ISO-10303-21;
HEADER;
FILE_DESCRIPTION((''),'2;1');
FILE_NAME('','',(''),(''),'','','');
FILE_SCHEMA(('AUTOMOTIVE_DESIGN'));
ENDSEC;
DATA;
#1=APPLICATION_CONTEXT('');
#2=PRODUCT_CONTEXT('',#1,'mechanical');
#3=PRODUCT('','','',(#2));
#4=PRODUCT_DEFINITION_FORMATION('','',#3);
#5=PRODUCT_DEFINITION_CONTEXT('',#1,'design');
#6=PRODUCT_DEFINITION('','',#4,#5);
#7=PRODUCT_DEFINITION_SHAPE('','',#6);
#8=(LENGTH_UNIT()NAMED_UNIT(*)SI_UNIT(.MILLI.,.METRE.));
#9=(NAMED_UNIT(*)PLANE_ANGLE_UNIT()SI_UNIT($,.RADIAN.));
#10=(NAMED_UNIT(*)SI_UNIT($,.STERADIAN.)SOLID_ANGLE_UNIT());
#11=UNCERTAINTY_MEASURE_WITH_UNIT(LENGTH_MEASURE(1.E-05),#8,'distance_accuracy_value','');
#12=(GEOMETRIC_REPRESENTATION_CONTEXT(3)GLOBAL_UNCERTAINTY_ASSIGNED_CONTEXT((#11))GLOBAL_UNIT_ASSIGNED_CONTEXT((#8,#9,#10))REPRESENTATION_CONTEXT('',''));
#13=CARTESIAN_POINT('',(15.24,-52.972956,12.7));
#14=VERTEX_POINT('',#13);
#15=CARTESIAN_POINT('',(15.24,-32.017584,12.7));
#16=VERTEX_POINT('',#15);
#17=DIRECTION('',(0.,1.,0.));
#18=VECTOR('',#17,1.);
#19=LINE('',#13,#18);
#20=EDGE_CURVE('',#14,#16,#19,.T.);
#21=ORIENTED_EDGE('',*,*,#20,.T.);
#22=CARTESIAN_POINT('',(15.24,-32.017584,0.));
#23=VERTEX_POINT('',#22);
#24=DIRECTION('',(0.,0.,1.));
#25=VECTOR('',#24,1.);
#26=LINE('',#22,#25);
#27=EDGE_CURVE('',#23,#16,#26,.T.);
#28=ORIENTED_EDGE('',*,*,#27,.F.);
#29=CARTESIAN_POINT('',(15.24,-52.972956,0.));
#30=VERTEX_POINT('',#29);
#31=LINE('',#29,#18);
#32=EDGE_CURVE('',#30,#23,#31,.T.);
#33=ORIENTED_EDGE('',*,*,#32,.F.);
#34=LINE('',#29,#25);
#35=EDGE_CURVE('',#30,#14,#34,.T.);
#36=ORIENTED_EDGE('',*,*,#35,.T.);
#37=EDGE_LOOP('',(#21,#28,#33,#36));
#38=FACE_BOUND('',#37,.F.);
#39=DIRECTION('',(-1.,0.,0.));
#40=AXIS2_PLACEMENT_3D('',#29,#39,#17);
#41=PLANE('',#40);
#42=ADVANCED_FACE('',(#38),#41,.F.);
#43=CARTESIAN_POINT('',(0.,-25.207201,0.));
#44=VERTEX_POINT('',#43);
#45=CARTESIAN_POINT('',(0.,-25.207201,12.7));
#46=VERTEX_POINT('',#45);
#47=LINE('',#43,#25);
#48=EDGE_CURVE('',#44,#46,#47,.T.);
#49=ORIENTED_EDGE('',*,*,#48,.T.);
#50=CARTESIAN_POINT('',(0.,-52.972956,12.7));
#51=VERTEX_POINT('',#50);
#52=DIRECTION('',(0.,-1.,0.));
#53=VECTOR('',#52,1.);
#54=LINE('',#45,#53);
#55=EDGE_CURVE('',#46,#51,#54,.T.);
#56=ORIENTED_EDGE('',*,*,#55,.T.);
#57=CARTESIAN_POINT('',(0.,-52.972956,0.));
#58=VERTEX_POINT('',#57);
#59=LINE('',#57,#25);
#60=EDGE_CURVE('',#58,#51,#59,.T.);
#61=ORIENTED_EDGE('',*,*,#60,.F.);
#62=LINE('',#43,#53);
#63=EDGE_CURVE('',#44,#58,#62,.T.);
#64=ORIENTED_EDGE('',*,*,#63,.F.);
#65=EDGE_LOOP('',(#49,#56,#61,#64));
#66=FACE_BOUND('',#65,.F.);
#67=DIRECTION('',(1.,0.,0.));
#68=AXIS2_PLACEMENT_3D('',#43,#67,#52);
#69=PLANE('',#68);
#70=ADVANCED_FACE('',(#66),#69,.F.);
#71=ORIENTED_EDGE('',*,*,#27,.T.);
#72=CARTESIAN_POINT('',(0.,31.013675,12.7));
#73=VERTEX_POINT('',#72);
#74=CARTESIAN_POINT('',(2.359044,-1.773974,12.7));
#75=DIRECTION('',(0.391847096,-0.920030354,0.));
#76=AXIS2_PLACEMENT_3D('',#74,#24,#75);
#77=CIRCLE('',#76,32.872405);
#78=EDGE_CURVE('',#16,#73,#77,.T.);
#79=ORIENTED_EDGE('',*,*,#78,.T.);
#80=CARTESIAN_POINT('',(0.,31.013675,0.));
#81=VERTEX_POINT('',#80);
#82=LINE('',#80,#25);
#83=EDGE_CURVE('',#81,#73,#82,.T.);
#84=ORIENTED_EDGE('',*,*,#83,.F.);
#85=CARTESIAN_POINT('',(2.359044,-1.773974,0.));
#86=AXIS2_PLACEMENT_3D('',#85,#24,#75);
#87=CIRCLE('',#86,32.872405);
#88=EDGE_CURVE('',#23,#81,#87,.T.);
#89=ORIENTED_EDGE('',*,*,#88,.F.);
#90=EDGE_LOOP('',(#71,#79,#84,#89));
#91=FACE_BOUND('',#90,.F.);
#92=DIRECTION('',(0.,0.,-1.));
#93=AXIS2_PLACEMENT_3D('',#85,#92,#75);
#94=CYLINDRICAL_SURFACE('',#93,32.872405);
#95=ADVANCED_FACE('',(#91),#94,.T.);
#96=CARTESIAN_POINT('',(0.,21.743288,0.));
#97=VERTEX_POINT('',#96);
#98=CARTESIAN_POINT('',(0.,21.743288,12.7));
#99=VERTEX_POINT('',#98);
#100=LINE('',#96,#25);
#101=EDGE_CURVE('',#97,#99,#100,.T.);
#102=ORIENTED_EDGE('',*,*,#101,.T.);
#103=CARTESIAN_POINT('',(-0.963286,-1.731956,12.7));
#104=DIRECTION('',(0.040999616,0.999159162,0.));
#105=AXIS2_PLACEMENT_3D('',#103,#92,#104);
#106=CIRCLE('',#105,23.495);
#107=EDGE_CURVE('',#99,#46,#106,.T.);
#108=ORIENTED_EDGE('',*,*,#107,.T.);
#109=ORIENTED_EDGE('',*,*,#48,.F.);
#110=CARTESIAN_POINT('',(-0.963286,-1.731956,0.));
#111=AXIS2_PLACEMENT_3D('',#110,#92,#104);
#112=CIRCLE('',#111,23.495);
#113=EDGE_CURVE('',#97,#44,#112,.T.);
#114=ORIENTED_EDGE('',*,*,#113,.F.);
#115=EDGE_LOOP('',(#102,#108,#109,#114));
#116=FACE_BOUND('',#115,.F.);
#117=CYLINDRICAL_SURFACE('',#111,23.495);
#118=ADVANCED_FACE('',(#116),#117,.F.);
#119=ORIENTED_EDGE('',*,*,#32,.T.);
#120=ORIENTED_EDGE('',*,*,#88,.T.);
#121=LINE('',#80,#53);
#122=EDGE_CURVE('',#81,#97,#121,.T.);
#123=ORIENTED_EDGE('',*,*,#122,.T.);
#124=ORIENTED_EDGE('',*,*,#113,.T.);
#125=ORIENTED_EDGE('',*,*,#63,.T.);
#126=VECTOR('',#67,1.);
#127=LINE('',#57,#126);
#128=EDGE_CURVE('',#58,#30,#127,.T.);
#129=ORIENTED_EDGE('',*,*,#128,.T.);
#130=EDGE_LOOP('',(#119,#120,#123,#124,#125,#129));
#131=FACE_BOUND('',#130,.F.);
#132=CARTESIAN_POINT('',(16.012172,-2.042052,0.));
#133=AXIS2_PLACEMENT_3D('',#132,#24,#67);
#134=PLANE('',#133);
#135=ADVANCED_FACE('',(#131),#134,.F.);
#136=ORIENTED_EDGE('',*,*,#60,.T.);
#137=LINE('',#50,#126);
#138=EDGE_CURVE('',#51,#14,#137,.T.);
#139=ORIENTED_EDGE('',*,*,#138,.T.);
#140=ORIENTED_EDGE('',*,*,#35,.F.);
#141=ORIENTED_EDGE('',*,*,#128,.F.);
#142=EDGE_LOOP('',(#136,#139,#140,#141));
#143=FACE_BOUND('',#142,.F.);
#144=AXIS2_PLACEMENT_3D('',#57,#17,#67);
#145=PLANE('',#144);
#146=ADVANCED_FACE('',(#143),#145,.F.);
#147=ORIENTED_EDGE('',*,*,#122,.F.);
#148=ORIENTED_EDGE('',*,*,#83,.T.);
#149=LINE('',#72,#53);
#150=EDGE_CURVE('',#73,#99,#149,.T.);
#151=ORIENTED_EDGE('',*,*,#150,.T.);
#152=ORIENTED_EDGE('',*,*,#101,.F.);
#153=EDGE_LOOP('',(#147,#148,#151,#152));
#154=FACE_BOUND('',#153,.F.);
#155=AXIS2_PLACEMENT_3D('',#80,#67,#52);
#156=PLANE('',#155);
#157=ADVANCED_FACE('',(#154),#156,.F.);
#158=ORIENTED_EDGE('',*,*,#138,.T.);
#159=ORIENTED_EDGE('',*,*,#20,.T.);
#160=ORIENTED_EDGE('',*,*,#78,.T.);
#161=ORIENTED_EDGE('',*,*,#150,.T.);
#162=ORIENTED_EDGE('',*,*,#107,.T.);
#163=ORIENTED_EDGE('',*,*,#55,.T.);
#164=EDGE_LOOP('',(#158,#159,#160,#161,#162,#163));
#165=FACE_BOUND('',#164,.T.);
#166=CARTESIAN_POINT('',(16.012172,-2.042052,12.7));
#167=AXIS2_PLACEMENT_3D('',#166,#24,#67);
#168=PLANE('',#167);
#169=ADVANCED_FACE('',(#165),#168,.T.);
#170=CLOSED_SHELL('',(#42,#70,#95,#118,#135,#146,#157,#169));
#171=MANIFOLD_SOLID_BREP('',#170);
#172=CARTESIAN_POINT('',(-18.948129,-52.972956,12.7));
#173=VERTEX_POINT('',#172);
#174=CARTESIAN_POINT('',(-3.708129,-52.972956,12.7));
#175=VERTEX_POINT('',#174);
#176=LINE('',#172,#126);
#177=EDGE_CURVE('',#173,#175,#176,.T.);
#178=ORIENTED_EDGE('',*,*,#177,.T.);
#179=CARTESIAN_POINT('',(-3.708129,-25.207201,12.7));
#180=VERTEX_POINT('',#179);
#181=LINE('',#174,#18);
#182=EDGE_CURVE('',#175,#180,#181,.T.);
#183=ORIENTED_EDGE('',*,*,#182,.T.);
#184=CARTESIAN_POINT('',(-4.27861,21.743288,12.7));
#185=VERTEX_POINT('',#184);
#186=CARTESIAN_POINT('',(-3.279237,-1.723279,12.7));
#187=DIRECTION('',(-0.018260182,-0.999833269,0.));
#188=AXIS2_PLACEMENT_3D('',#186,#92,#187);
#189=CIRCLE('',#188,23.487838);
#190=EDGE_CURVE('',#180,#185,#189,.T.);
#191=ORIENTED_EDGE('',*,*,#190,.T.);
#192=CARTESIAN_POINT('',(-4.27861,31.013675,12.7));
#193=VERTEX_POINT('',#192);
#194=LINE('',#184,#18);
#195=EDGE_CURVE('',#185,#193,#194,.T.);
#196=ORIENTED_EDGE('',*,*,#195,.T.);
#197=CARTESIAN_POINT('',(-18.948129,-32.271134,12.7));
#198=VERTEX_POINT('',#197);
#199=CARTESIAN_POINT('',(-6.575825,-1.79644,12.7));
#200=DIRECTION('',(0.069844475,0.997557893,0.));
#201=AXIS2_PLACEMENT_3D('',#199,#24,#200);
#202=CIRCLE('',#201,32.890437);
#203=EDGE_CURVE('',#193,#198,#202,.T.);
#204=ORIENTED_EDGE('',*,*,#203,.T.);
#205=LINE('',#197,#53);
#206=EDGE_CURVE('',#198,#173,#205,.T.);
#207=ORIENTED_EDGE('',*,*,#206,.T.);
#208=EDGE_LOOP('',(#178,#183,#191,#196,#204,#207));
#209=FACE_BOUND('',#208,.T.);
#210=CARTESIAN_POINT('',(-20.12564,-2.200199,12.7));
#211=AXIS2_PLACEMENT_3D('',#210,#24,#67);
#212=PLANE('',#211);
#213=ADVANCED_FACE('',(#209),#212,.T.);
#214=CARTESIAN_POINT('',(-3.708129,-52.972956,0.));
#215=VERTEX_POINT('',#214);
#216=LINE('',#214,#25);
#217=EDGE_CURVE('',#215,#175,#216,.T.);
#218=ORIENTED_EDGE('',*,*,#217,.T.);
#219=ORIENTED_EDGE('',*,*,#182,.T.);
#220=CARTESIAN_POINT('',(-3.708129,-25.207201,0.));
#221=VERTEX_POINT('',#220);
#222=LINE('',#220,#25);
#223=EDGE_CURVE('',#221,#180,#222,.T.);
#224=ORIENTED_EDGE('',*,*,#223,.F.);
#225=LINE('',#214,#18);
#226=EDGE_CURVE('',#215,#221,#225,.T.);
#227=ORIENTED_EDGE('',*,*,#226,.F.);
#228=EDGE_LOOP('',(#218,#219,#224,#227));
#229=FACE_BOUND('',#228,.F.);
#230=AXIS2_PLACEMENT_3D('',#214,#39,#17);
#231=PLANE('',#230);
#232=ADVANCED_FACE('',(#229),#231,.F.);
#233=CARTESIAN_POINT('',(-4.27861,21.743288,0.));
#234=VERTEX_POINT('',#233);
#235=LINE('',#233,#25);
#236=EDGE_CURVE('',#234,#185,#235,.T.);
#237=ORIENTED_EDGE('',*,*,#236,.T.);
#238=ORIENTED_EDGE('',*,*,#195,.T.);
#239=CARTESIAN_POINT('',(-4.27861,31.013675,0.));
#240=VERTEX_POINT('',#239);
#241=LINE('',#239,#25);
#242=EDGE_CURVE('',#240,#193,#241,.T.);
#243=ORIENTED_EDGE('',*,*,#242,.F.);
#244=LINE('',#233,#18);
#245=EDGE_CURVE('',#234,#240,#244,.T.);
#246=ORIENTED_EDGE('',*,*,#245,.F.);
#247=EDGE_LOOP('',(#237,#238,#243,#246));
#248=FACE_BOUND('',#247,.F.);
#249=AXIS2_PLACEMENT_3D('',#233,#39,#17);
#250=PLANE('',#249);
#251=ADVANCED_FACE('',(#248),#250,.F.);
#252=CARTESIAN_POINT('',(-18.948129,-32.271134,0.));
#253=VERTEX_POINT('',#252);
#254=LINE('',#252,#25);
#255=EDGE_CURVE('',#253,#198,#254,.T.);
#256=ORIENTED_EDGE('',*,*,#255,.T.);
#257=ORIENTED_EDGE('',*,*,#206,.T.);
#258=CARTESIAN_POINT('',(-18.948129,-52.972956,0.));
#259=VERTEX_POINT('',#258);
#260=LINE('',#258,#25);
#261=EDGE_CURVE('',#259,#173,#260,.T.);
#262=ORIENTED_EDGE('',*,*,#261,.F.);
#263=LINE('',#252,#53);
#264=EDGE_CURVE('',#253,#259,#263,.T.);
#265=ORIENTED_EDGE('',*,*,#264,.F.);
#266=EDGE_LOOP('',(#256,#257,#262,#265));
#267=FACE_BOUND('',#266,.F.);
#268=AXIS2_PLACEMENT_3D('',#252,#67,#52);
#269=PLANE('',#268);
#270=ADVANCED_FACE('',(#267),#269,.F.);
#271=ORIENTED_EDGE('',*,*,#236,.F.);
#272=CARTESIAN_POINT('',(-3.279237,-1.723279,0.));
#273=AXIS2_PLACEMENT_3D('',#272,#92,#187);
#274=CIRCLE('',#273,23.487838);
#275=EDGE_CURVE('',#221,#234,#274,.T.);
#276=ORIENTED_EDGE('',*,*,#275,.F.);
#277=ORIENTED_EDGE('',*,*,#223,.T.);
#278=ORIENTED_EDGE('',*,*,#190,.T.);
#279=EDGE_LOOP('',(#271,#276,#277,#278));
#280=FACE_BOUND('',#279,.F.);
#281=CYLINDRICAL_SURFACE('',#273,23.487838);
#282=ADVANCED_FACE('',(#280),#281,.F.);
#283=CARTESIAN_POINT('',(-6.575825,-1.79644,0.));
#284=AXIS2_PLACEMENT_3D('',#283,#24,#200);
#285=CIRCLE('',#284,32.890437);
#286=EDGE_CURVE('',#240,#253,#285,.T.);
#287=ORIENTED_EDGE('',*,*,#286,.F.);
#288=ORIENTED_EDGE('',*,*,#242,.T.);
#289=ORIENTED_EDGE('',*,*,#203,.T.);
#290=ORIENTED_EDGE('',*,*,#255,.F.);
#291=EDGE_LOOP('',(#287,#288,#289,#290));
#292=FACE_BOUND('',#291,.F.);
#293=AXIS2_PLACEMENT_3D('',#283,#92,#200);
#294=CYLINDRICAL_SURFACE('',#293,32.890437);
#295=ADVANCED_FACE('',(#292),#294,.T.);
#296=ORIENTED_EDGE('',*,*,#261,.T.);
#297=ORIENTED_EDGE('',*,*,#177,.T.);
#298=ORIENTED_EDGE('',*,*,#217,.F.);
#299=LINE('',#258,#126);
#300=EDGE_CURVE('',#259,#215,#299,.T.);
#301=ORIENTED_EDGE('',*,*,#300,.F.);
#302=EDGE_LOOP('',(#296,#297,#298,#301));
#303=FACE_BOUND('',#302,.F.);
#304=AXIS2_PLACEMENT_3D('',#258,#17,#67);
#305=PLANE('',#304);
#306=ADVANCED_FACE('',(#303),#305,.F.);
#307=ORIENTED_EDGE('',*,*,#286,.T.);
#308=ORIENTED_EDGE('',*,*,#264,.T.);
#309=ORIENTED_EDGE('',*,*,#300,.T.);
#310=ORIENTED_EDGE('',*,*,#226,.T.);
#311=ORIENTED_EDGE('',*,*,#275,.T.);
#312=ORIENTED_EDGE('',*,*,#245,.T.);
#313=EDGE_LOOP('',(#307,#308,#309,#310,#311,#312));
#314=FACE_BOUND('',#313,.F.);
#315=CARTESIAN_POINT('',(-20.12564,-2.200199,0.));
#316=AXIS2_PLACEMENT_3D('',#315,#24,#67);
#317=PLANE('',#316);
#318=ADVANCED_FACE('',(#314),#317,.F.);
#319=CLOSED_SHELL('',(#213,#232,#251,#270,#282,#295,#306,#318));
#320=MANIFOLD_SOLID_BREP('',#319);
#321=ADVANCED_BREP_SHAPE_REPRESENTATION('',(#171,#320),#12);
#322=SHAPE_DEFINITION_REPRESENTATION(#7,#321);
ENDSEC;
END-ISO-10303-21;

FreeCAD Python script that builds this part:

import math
import FreeCAD as App
import Part
import Sketcher
Q = App.Units.Quantity

doc = App.newDocument("Part")
body = doc.addObject("PartDesign::Body", "Body")
body.AllowCompound = True

sketch1 = doc.addObject("Sketcher::SketchObject", "Sketch")
body.addObject(sketch1)
sketch1.AttachmentSupport = (doc.XY_Plane, [""])
sketch1.MapMode = "FlatFace"
sketch1.addGeometry(Part.ArcOfCircle(Part.Circle(App.Vector(-0.963286, -1.731956, 0), App.Vector(0, 0, 1), 23.495), math.radians(-87.650236), math.radians(87.650236)), False)
sketch1.addGeometry(Part.LineSegment(App.Vector(0, -25.207201, 0), App.Vector(0, -52.972956, 0)), False)
sketch1.addGeometry(Part.LineSegment(App.Vector(0, -52.972956, 0), App.Vector(15.24, -52.972956, 0)), False)
sketch1.addGeometry(Part.LineSegment(App.Vector(15.24, -52.972956, 0), App.Vector(15.24, -32.017584, 0)), False)
sketch1.addGeometry(Part.ArcOfCircle(Part.Circle(App.Vector(2.359044, -1.773974, 0), App.Vector(0, 0, 1), 32.872405), math.radians(-66.93052), math.radians(94.115292)), False)
sketch1.addGeometry(Part.LineSegment(App.Vector(0, 31.013675, 0), App.Vector(0, 21.743288, 0)), False)
sketch1.addGeometry(Part.ArcOfCircle(Part.Circle(App.Vector(-3.279237, -1.723279, 0), App.Vector(0, 0, 1), 23.487838), math.radians(92.438588), math.radians(268.953711)), False)
sketch1.addGeometry(Part.LineSegment(App.Vector(-4.27861, 21.743288, 0), App.Vector(-4.27861, 31.013675, 0)), False)
sketch1.addGeometry(Part.ArcOfCircle(Part.Circle(App.Vector(-6.575825, -1.79644, 0), App.Vector(0, 0, 1), 32.890437), math.radians(85.994946), math.radians(247.903529)), False)
sketch1.addGeometry(Part.LineSegment(App.Vector(-18.948129, -32.271134, 0), App.Vector(-18.948129, -52.972956, 0)), False)
sketch1.addGeometry(Part.LineSegment(App.Vector(-18.948129, -52.972956, 0), App.Vector(-3.708129, -52.972956, 0)), False)
sketch1.addGeometry(Part.LineSegment(App.Vector(-3.708129, -52.972956, 0), App.Vector(-3.708129, -25.207201, 0)), False)
sketch1.addConstraint(Sketcher.Constraint("Coincident", 0, 1, 1, 1))
sketch1.addConstraint(Sketcher.Constraint("Coincident", 1, 2, 2, 1))
sketch1.addConstraint(Sketcher.Constraint("Coincident", 2, 2, 3, 1))
sketch1.addConstraint(Sketcher.Constraint("Coincident", 3, 2, 4, 1))
sketch1.addConstraint(Sketcher.Constraint("Coincident", 4, 2, 5, 1))
sketch1.addConstraint(Sketcher.Constraint("Coincident", 5, 2, 0, 2))
sketch1.addConstraint(Sketcher.Constraint("Coincident", 6, 1, 7, 1))
sketch1.addConstraint(Sketcher.Constraint("Coincident", 7, 2, 8, 1))
sketch1.addConstraint(Sketcher.Constraint("Coincident", 8, 2, 9, 1))
sketch1.addConstraint(Sketcher.Constraint("Coincident", 9, 2, 10, 1))
sketch1.addConstraint(Sketcher.Constraint("Coincident", 10, 2, 11, 1))
sketch1.addConstraint(Sketcher.Constraint("Coincident", 11, 2, 6, 2))
sketch1.addConstraint(Sketcher.Constraint("Vertical", 1))
sketch1.addConstraint(Sketcher.Constraint("Horizontal", 2))
sketch1.addConstraint(Sketcher.Constraint("Vertical", 3))
sketch1.addConstraint(Sketcher.Constraint("Vertical", 5))
sketch1.addConstraint(Sketcher.Constraint("Vertical", 7))
sketch1.addConstraint(Sketcher.Constraint("Vertical", 9))
sketch1.addConstraint(Sketcher.Constraint("Horizontal", 10))
sketch1.addConstraint(Sketcher.Constraint("Vertical", 11))
sketch1.addConstraint(Sketcher.Constraint("PointOnObject", 0, 1, -2))
sketch1.addConstraint(Sketcher.Constraint("PointOnObject", 4, 2, -2))
sketch1.addConstraint(Sketcher.Constraint("Horizontal", 5, 2, 6, 1))
sketch1.addConstraint(Sketcher.Constraint("Horizontal", 4, 2, 7, 2))
sketch1.addConstraint(Sketcher.Constraint("Horizontal", 2, 2, 9, 2))
sketch1.addConstraint(Sketcher.Constraint("Horizontal", 0, 1, 11, 2))
sketch1.addConstraint(Sketcher.Constraint("Equal", 2, 10))
sketch1.addConstraint(Sketcher.Constraint("DistanceX", 2, 1, 2, 2, Q("0.6 in")))
sketch1.addConstraint(Sketcher.Constraint("Radius", 0, Q("0.925 in")))
sketch1.addConstraint(Sketcher.Constraint("Radius", 4, 32.872405))
sketch1.addConstraint(Sketcher.Constraint("Radius", 6, 23.487838))
sketch1.addConstraint(Sketcher.Constraint("Radius", 8, 32.890437))
sketch1.addConstraint(Sketcher.Constraint("DistanceY", 9, 2, 9, 1, 20.701822))
sketch1.addConstraint(Sketcher.Constraint("DistanceY", 0, 1, -1, 1, 25.207201))
sketch1.addConstraint(Sketcher.Constraint("DistanceY", 1, 2, 0, 3, 51.241))
sketch1.addConstraint(Sketcher.Constraint("DistanceY", 1, 2, 1, 1, 27.765755))
sketch1.addConstraint(Sketcher.Constraint("DistanceY", 3, 1, 3, 2, 20.955372))
sketch1.addConstraint(Sketcher.Constraint("DistanceY", 5, 2, 5, 1, 9.270387))
sketch1.addConstraint(Sketcher.Constraint("DistanceY", 6, 3, -1, 1, 1.723279))
sketch1.addConstraint(Sketcher.Constraint("DistanceX", 6, 1, -1, 1, 4.27861))
pad1 = doc.addObject("PartDesign::Pad", "Pad")
body.addObject(pad1)
pad1.Profile = sketch1
pad1.Length = Q("0.5 in")

doc.recompute()
